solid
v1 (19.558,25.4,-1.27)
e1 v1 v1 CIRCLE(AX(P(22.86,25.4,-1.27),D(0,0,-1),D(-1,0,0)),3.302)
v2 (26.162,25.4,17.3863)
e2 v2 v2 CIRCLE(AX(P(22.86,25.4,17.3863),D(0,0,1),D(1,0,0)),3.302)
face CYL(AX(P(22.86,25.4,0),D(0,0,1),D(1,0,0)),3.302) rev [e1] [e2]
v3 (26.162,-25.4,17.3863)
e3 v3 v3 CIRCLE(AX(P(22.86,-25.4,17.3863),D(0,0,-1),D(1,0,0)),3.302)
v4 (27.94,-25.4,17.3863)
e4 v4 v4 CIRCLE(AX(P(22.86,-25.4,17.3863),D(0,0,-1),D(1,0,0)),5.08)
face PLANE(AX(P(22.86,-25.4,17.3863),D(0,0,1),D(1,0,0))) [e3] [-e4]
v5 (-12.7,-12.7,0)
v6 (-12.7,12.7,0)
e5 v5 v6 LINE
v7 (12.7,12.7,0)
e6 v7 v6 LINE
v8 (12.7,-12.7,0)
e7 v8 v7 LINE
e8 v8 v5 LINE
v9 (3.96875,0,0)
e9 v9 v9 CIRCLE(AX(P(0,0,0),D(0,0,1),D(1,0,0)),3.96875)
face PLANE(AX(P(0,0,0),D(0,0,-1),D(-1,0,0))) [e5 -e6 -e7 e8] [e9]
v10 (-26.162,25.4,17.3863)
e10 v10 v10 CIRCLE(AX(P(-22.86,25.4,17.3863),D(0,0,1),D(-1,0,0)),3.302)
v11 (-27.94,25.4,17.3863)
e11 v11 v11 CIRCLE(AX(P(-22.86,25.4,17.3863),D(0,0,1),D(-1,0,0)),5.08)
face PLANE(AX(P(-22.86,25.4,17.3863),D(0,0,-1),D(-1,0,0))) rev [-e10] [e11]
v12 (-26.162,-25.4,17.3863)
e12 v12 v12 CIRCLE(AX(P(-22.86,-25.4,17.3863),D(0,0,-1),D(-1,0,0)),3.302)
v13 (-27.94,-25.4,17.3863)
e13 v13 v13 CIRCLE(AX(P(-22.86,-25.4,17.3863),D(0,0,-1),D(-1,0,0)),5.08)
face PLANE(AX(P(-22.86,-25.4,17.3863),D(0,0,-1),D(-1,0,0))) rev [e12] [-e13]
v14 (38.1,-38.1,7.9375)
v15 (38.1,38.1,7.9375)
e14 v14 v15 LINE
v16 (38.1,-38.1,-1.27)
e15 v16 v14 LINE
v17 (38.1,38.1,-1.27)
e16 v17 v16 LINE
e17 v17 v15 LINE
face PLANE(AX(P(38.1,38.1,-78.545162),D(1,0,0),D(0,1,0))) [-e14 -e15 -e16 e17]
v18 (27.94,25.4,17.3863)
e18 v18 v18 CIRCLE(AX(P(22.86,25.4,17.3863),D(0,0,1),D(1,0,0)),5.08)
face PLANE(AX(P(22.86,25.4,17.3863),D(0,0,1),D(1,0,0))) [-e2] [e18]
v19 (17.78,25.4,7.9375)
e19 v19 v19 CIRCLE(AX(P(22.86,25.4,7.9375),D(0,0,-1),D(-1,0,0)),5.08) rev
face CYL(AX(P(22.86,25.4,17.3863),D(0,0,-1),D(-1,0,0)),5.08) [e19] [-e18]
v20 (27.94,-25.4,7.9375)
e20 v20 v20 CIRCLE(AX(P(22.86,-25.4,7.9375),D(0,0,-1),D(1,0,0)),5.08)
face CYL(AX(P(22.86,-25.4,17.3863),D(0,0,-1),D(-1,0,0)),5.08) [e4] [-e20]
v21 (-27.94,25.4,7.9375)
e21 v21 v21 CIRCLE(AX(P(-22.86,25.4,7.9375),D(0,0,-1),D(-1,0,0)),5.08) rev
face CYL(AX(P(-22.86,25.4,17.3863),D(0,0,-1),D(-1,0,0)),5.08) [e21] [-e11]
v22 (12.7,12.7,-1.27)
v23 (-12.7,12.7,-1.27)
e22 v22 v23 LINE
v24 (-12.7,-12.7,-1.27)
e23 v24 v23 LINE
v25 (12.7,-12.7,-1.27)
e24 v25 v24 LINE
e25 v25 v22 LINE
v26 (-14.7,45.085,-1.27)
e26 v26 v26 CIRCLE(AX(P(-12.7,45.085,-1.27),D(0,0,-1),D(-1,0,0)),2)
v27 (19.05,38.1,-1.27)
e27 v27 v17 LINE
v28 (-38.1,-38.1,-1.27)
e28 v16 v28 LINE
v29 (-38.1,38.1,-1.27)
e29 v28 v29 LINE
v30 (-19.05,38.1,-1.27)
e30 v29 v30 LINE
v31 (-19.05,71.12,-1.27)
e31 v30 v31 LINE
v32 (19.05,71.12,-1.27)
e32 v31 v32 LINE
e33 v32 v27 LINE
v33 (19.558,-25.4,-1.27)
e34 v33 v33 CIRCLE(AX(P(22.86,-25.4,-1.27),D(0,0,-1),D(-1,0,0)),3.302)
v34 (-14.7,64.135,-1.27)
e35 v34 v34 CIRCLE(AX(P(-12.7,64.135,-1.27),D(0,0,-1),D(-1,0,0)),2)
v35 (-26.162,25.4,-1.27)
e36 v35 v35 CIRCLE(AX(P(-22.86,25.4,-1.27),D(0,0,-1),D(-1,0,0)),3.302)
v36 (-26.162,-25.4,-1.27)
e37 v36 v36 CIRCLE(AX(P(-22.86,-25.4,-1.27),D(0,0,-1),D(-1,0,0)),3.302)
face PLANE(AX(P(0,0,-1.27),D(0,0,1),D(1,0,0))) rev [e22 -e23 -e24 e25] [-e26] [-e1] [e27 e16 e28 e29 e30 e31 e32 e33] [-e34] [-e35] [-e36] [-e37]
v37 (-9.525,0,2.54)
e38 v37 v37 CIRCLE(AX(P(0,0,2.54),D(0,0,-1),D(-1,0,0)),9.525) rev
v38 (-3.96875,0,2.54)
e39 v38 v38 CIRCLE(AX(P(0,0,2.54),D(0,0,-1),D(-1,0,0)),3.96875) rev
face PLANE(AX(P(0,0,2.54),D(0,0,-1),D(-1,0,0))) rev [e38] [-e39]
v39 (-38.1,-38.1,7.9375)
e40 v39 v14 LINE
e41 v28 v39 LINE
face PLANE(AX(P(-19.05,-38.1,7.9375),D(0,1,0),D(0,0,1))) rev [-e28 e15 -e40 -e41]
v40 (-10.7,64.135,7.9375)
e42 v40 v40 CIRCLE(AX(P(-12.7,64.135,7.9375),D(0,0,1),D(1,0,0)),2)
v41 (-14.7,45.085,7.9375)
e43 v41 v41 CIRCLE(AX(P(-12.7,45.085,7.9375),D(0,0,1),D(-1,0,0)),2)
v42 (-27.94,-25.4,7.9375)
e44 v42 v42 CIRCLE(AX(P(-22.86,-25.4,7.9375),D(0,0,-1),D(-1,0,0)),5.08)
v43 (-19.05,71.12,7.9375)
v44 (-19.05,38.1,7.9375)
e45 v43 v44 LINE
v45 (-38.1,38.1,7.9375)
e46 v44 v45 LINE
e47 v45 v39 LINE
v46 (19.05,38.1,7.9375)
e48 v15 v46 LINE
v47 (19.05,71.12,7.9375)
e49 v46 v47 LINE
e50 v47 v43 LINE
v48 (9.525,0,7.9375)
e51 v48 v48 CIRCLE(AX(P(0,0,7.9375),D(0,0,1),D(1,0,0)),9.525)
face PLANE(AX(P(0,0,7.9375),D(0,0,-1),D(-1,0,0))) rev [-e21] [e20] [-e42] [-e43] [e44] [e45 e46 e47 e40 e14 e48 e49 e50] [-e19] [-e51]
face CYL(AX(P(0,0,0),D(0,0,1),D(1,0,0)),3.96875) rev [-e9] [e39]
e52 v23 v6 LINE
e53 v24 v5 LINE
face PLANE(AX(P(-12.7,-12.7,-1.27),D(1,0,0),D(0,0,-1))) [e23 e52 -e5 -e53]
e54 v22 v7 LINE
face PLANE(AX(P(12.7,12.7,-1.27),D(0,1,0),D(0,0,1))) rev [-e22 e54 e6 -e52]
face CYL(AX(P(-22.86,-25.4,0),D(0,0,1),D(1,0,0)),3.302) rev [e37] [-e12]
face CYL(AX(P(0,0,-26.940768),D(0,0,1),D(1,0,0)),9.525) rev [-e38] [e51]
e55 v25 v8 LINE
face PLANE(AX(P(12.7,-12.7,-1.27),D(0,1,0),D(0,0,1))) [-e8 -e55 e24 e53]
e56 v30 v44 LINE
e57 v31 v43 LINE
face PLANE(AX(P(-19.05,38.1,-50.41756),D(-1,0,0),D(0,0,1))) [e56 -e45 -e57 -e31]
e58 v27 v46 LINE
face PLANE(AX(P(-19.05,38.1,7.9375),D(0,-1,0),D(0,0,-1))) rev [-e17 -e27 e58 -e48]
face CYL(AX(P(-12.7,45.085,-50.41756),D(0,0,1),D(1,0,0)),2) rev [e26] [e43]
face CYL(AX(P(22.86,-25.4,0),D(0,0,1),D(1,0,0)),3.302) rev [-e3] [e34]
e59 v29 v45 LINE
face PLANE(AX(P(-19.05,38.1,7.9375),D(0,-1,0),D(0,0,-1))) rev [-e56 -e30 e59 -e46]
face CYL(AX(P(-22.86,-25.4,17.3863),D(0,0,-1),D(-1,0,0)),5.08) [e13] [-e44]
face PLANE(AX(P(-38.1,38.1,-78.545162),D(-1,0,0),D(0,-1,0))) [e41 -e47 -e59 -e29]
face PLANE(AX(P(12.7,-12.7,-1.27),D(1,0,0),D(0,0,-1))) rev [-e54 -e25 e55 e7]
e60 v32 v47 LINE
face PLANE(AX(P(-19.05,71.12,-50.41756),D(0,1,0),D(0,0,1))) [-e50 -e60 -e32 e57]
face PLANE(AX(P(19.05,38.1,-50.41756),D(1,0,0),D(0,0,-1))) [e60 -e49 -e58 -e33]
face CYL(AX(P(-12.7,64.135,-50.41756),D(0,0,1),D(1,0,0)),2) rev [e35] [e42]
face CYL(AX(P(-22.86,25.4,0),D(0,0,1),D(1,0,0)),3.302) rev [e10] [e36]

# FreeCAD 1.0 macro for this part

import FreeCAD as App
import Part
import Sketcher

V = App.Vector
Q = App.Units.Quantity

doc = App.newDocument("Part")
params = doc.addObject("Spreadsheet::Sheet", "Params")
for row, (alias, value) in enumerate([
    ("sketch1_height", "3 in"),
    ("sketch1_width", "1.5 in"),
    ("pad1_length", "0.3125 in"),
    ("sketch2_diameter", "0.3125 in"),
    ("sketch3_diameter", "0.75 in"),
    ("pocket2_length", "0.2125 in"),
    ("sketch4_height", "3 in"),
    ("sketch4_width", "0.75 in"),
    ("pad2_length", "0.3125 in"),
    ("sketch5_diameter", "0.4 in"),
    ("pad3_length", "0.372 in"),
    ("sketch6_diameter", "0.26 in"),
    ("sketch7_width", "1.5 in"),
    ("sketch7_height", "1.3 in"),
    ("pad4_length", "0.3125 in"),
    ("sketch8_diameter", "0.26 in"),
    ("sketch8_width", "3 in"),
    ("sketch8_width2", "1 in"),
    ("sketch8_width3", "1.5 in"),
    ("sketch8_height", "1.3 in"),
    ("pad5_length", "0.05 in"),
], start=1):
    params.set(f"A{row}", alias)
    params.set(f"B{row}", "=" + value)
    params.setAlias(f"B{row}", alias)

body = doc.addObject("PartDesign::Body", "Body")

# Sketch on XY plane
sketch1 = body.newObject("Sketcher::SketchObject", "Sketch")
sketch1.AttachmentSupport = (doc.getObject("XY_Plane"), [""])
sketch1.MapMode = "FlatFace"
sketch1.addGeometry([
    Part.LineSegment(V(-19, 38, 0), V(-19, -38, 0)),
    Part.LineSegment(V(-19, -38, 0), V(19, -38, 0)),
    Part.LineSegment(V(19, -38, 0), V(19, 38, 0)),
    Part.LineSegment(V(19, 38, 0), V(-19, 38, 0)),
], False)
sketch1.addConstraint([
    Sketcher.Constraint("Coincident", 0, 2, 1, 1),
    Sketcher.Constraint("Coincident", 1, 2, 2, 1),
    Sketcher.Constraint("Coincident", 2, 2, 3, 1),
    Sketcher.Constraint("Coincident", 3, 2, 0, 1),
    Sketcher.Constraint("Vertical", 0),
    Sketcher.Constraint("Horizontal", 1),
    Sketcher.Constraint("Vertical", 2),
    Sketcher.Constraint("Horizontal", 3),
    Sketcher.Constraint("Symmetric", 0, 2, 2, 2, -1, 1),
    Sketcher.Constraint("DistanceY", 0, 2, 0, 1, Q("3 in")),
    Sketcher.Constraint("DistanceX", 1, 1, 1, 2, Q("1.5 in")),
])
sketch1.setExpression("Constraints[9]", "Params.sketch1_height")
sketch1.setExpression("Constraints[10]", "Params.sketch1_width")
pad1 = body.newObject("PartDesign::Pad", "Pad")
pad1.Profile = sketch1
pad1.setExpression("Length", "Params.pad1_length")

# Sketch on XY plane
sketch2 = body.newObject("Sketcher::SketchObject", "Sketch001")
sketch2.AttachmentSupport = (doc.getObject("XY_Plane"), [""])
sketch2.MapMode = "FlatFace"
sketch2.AttachmentOffset = App.Placement(V(0, 0, 0.3125 * 25.4), App.Rotation())
sketch2.addGeometry(Part.Circle(V(0, 0, 0), V(0, 0, 1), 4), False)
sketch2.addConstraint([
    Sketcher.Constraint("Coincident", 0, 3, -1, 1),
    Sketcher.Constraint("Diameter", 0, Q("0.3125 in")),
])
sketch2.setExpression("Constraints[1]", "Params.sketch2_diameter")
pocket1 = body.newObject("PartDesign::Pocket", "Pocket")
pocket1.Profile = sketch2
pocket1.Type = "ThroughAll"

# Sketch on XY plane
sketch3 = body.newObject("Sketcher::SketchObject", "Sketch002")
sketch3.AttachmentSupport = (doc.getObject("XY_Plane"), [""])
sketch3.MapMode = "FlatFace"
sketch3.AttachmentOffset = App.Placement(V(0, 0, 0.3125 * 25.4), App.Rotation())
sketch3.addGeometry(Part.Circle(V(0, 0, 0), V(0, 0, 1), 10), False)
sketch3.addConstraint([
    Sketcher.Constraint("Coincident", 0, 3, -1, 1),
    Sketcher.Constraint("Diameter", 0, Q("0.75 in")),
])
sketch3.setExpression("Constraints[1]", "Params.sketch3_diameter")
pocket2 = body.newObject("PartDesign::Pocket", "Pocket001")
pocket2.Profile = sketch3
pocket2.setExpression("Length", "Params.pocket2_length")

# Sketch on XY plane
sketch4 = body.newObject("Sketcher::SketchObject", "Sketch003")
sketch4.AttachmentSupport = (doc.getObject("XY_Plane"), [""])
sketch4.MapMode = "FlatFace"
sketch4.AttachmentOffset = App.Placement(V(0, 0, 0.3125 * 25.4), App.Rotation())
sketch4.addGeometry([
    Part.LineSegment(V(-38, 38, 0), V(-38, -38, 0)),  # 0
    Part.LineSegment(V(-38, -38, 0), V(-19, -38, 0)),  # 1
    Part.LineSegment(V(-19, -38, 0), V(-19, 38, 0)),  # 2
    Part.LineSegment(V(-19, 38, 0), V(-38, 38, 0)),  # 3
    Part.LineSegment(V(19, 38, 0), V(19, -38, 0)),  # 4
    Part.LineSegment(V(19, -38, 0), V(38, -38, 0)),  # 5
    Part.LineSegment(V(38, -38, 0), V(38, 38, 0)),  # 6
    Part.LineSegment(V(38, 38, 0), V(19, 38, 0)),  # 7
], False)
sketch4.addConstraint([
    Sketcher.Constraint("Coincident", 0, 2, 1, 1),
    Sketcher.Constraint("Coincident", 1, 2, 2, 1),
    Sketcher.Constraint("Coincident", 2, 2, 3, 1),
    Sketcher.Constraint("Coincident", 3, 2, 0, 1),
    Sketcher.Constraint("Coincident", 4, 2, 5, 1),
    Sketcher.Constraint("Coincident", 5, 2, 6, 1),
    Sketcher.Constraint("Coincident", 6, 2, 7, 1),
    Sketcher.Constraint("Coincident", 7, 2, 4, 1),
    Sketcher.Constraint("Vertical", 0),
    Sketcher.Constraint("Horizontal", 1),
    Sketcher.Constraint("Vertical", 2),
    Sketcher.Constraint("Horizontal", 3),
    Sketcher.Constraint("Vertical", 4),
    Sketcher.Constraint("Horizontal", 5),
    Sketcher.Constraint("Vertical", 6),
    Sketcher.Constraint("Horizontal", 7),
    Sketcher.Constraint("Symmetric", 2, 2, 4, 2, -1, 1),
    Sketcher.Constraint("Symmetric", 0, 2, 6, 2, -1, 1),
    Sketcher.Constraint("Horizontal", 1, 2, 4, 2),
    Sketcher.Constraint("DistanceY", 0, 2, 0, 1, Q("3 in")),
    Sketcher.Constraint("DistanceX", 0, 2, 5, 2, Q("3 in")),
    Sketcher.Constraint("DistanceX", 1, 1, 1, 2, Q("0.75 in")),
])
sketch4.setExpression("Constraints[19]", "Params.sketch4_height")
sketch4.setExpression("Constraints[21]", "Params.sketch4_width")
pad2 = body.newObject("PartDesign::Pad", "Pad001")
pad2.Profile = sketch4
pad2.setExpression("Length", "Params.pad2_length")
pad2.Reversed = True

# Sketch on XY plane
sketch5 = body.newObject("Sketcher::SketchObject", "Sketch004")
sketch5.AttachmentSupport = (doc.getObject("XY_Plane"), [""])
sketch5.MapMode = "FlatFace"
sketch5.AttachmentOffset = App.Placement(V(0, 0, 0.3125 * 25.4), App.Rotation())
sketch5.addGeometry([
    Part.Circle(V(23, 25, 0), V(0, 0, 1), 5),
    Part.Circle(V(-23, 25, 0), V(0, 0, 1), 5),
], False)
sketch5.addConstraint([
    Sketcher.Constraint("Equal", 0, 1),
    Sketcher.Constraint("Symmetric", 0, 3, 1, 3, -2),
    Sketcher.Constraint("Diameter", 0, Q("0.4 in")),
    Sketcher.Constraint("DistanceY", -1, 1, 0, 3, Q("1 in")),
    Sketcher.Constraint("DistanceX", -1, 1, 0, 3, Q("0.9 in")),
])
sketch5.setExpression("Constraints[2]", "Params.sketch5_diameter")
pad3 = body.newObject("PartDesign::Pad", "Pad002")
pad3.Profile = sketch5
pad3.setExpression("Length", "Params.pad3_length")

# Sketch on XY plane
sketch6 = body.newObject("Sketcher::SketchObject", "Sketch005")
sketch6.AttachmentSupport = (doc.getObject("XY_Plane"), [""])
sketch6.MapMode = "FlatFace"
sketch6.AttachmentOffset = App.Placement(V(0, 0, 0.6845 * 25.4), App.Rotation())
sketch6.addGeometry([
    Part.Circle(V(22.9, 25.4, 0), V(0, 0, 1), 3.3),
    Part.Circle(V(-22.9, 25.4, 0), V(0, 0, 1), 3.3),
], False)
sketch6.addConstraint([
    Sketcher.Constraint("Equal", 0, 1),
    Sketcher.Constraint("Symmetric", 0, 3, 1, 3, -2),
    Sketcher.Constraint("Diameter", 0, Q("0.26 in")),
    Sketcher.Constraint("DistanceY", -1, 1, 0, 3, Q("1 in")),
    Sketcher.Constraint("DistanceX", -1, 1, 0, 3, Q("0.9 in")),
])
sketch6.setExpression("Constraints[2]", "Params.sketch6_diameter")
pocket3 = body.newObject("PartDesign::Pocket", "Pocket002")
pocket3.Profile = sketch6
pocket3.Type = "ThroughAll"
doc.recompute()

mirrored = body.newObject("PartDesign::Mirrored", "Mirrored")
mirrored.Originals = [pad3, pocket3]
mirrored.MirrorPlane = (doc.getObject("XZ_Plane"), [""])
body.Tip = mirrored

# Sketch on XY plane
sketch7 = body.newObject("Sketcher::SketchObject", "Sketch006")
sketch7.AttachmentSupport = (doc.getObject("XY_Plane"), [""])
sketch7.MapMode = "FlatFace"
sketch7.AttachmentOffset = App.Placement(V(0, 0, 0.3125 * 25.4), App.Rotation())
sketch7.addGeometry([
    Part.LineSegment(V(-19.1, 71.1, 0), V(-19.1, 38.1, 0)),  # 0
    Part.LineSegment(V(-19.1, 38.1, 0), V(19.1, 38.1, 0)),  # 1
    Part.LineSegment(V(19.1, 38.1, 0), V(19.1, 71.1, 0)),  # 2
    Part.LineSegment(V(19.1, 71.1, 0), V(-19.1, 71.1, 0)),  # 3
    Part.Circle(V(-12.7, 45.1, 0), V(0, 0, 1), 2),  # 4
    Part.Circle(V(-12.7, 64.1, 0), V(0, 0, 1), 2),  # 5
], False)
sketch7.addConstraint([
    Sketcher.Constraint("Coincident", 0, 2, 1, 1),
    Sketcher.Constraint("Coincident", 1, 2, 2, 1),
    Sketcher.Constraint("Coincident", 2, 2, 3, 1),
    Sketcher.Constraint("Coincident", 3, 2, 0, 1),
    Sketcher.Constraint("Vertical", 0),
    Sketcher.Constraint("Horizontal", 1),
    Sketcher.Constraint("Vertical", 2),
    Sketcher.Constraint("Horizontal", 3),
    Sketcher.Constraint("Equal", 4, 5),
    Sketcher.Constraint("Vertical", 4, 3, 5, 3),
    Sketcher.Constraint("DistanceX", 1, 1, 1, 2, Q("1.5 in")),
    Sketcher.Constraint("DistanceY", 0, 2, 0, 1, Q("1.3 in")),
    Sketcher.Constraint("DistanceX", 4, 3, -1, 1, Q("0.5 in")),
    Sketcher.Constraint("DistanceY", -1, 1, 0, 2, Q("1.5 in")),
    Sketcher.Constraint("Diameter", 4, 4.0),
    Sketcher.Constraint("DistanceX", 0, 2, -1, 1, Q("0.75 in")),
    Sketcher.Constraint("DistanceY", 4, 3, 5, 3, Q("0.75 in")),
    Sketcher.Constraint("DistanceY", -1, 1, 4, 3, Q("1.775 in")),
])
sketch7.setExpression("Constraints[10]", "Params.sketch7_width")
sketch7.setExpression("Constraints[11]", "Params.sketch7_height")
pad4 = body.newObject("PartDesign::Pad", "Pad003")
pad4.Profile = sketch7
pad4.setExpression("Length", "Params.pad4_length")
pad4.Reversed = True

# Sketch on XY plane
sketch8 = body.newObject("Sketcher::SketchObject", "Sketch007")
sketch8.AttachmentSupport = (doc.getObject("XY_Plane"), [""])
sketch8.MapMode = "FlatFace"
sketch8.addGeometry([
    Part.LineSegment(V(19.1, 38.1, 0), V(38.1, 38.1, 0)),  # 0
    Part.LineSegment(V(38.1, 38.1, 0), V(38.1, -38.1, 0)),  # 1
    Part.LineSegment(V(38.1, -38.1, 0), V(-38.1, -38.1, 0)),  # 2
    Part.LineSegment(V(-38.1, -38.1, 0), V(-38.1, 38.1, 0)),  # 3
    Part.LineSegment(V(-38.1, 38.1, 0), V(-19.1, 38.1, 0)),  # 4
    Part.LineSegment(V(-19.1, 38.1, 0), V(-19.1, 71.1, 0)),  # 5
    Part.LineSegment(V(-19.1, 71.1, 0), V(19.1, 71.1, 0)),  # 6
    Part.LineSegment(V(19.1, 71.1, 0), V(19.1, 38.1, 0)),  # 7
    Part.Circle(V(22.9, -25.4, 0), V(0, 0, 1), 3.3),  # 8
    Part.Circle(V(-22.9, -25.4, 0), V(0, 0, 1), 3.3),  # 9
    Part.LineSegment(V(-12.7, -12.7, 0), V(12.7, -12.7, 0)),  # 10
    Part.LineSegment(V(12.7, -12.7, 0), V(12.7, 12.7, 0)),  # 11
    Part.LineSegment(V(12.7, 12.7, 0), V(-12.7, 12.7, 0)),  # 12
    Part.LineSegment(V(-12.7, 12.7, 0), V(-12.7, -12.7, 0)),  # 13
    Part.Circle(V(22.9, 25.4, 0), V(0, 0, 1), 3.3),  # 14
    Part.Circle(V(-22.9, 25.4, 0), V(0, 0, 1), 3.3),  # 15
    Part.Circle(V(-12.7, 45.1, 0), V(0, 0, 1), 2),  # 16
    Part.Circle(V(-12.7, 64.1, 0), V(0, 0, 1), 2),  # 17
], False)
sketch8.addConstraint([
    Sketcher.Constraint("Coincident", 0, 2, 1, 1),
    Sketcher.Constraint("Coincident", 1, 2, 2, 1),
    Sketcher.Constraint("Coincident", 2, 2, 3, 1),
    Sketcher.Constraint("Coincident", 3, 2, 4, 1),
    Sketcher.Constraint("Coincident", 4, 2, 5, 1),
    Sketcher.Constraint("Coincident", 5, 2, 6, 1),
    Sketcher.Constraint("Coincident", 6, 2, 7, 1),
    Sketcher.Constraint("Coincident", 7, 2, 0, 1),
    Sketcher.Constraint("Coincident", 10, 2, 11, 1),
    Sketcher.Constraint("Coincident", 11, 2, 12, 1),
    Sketcher.Constraint("Coincident", 12, 2, 13, 1),
    Sketcher.Constraint("Coincident", 13, 2, 10, 1),
    Sketcher.Constraint("Horizontal", 0),
    Sketcher.Constraint("Vertical", 1),
    Sketcher.Constraint("Horizontal", 2),
    Sketcher.Constraint("Vertical", 3),
    Sketcher.Constraint("Horizontal", 4),
    Sketcher.Constraint("Vertical", 5),
    Sketcher.Constraint("Horizontal", 6),
    Sketcher.Constraint("Vertical", 7),
    Sketcher.Constraint("Horizontal", 10),
    Sketcher.Constraint("Vertical", 11),
    Sketcher.Constraint("Horizontal", 12),
    Sketcher.Constraint("Vertical", 13),
    Sketcher.Constraint("Equal", 8, 9),
    Sketcher.Constraint("Equal", 9, 14),
    Sketcher.Constraint("Equal", 14, 15),
    Sketcher.Constraint("Equal", 16, 17),
    Sketcher.Constraint("Symmetric", 9, 3, 14, 3, -1, 1),
    Sketcher.Constraint("Symmetric", 8, 3, 15, 3, -1, 1),
    Sketcher.Constraint("Symmetric", 0, 2, 2, 2, -1, 1),
    Sketcher.Constraint("Symmetric", 10, 2, 12, 2, -1, 1),
    Sketcher.Constraint("Symmetric", 8, 3, 9, 3, -2),
    Sketcher.Constraint("Symmetric", 4, 2, 7, 2, -2),
    Sketcher.Constraint("Vertical", 16, 3, 17, 3),
    Sketcher.Constraint("Vertical", 17, 3, 12, 2),
    Sketcher.Constraint("Equal", 2, 1),
    Sketcher.Constraint("Equal", 12, 11),
    Sketcher.Constraint("Diameter", 8, Q("0.26 in")),
    Sketcher.Constraint("DistanceX", 2, 2, 2, 1, Q("3 in")),
    Sketcher.Constraint("DistanceX", 10, 1, 10, 2, Q("1 in")),
    Sketcher.Constraint("DistanceX", 6, 1, 6, 2, Q("1.5 in")),
    Sketcher.Constraint("DistanceY", 5, 1, 5, 2, Q("1.3 in")),
    Sketcher.Constraint("DistanceY", 8, 3, -1, 1, Q("1 in")),
    Sketcher.Constraint("DistanceX", -1, 1, 8, 3, Q("0.9 in")),
    Sketcher.Constraint("Diameter", 16, 4.0),
    Sketcher.Constraint("DistanceY", 16, 3, 17, 3, Q("0.75 in")),
    Sketcher.Constraint("DistanceY", -1, 1, 16, 3, Q("1.775 in")),
])
sketch8.setExpression("Constraints[38]", "Params.sketch8_diameter")
sketch8.setExpression("Constraints[39]", "Params.sketch8_width")
sketch8.setExpression("Constraints[40]", "Params.sketch8_width2")
sketch8.setExpression("Constraints[41]", "Params.sketch8_width3")
sketch8.setExpression("Constraints[42]", "Params.sketch8_height")
pad5 = body.newObject("PartDesign::Pad", "Pad004")
pad5.Profile = sketch8
pad5.setExpression("Length", "Params.pad5_length")
pad5.Reversed = True

doc.recompute()
